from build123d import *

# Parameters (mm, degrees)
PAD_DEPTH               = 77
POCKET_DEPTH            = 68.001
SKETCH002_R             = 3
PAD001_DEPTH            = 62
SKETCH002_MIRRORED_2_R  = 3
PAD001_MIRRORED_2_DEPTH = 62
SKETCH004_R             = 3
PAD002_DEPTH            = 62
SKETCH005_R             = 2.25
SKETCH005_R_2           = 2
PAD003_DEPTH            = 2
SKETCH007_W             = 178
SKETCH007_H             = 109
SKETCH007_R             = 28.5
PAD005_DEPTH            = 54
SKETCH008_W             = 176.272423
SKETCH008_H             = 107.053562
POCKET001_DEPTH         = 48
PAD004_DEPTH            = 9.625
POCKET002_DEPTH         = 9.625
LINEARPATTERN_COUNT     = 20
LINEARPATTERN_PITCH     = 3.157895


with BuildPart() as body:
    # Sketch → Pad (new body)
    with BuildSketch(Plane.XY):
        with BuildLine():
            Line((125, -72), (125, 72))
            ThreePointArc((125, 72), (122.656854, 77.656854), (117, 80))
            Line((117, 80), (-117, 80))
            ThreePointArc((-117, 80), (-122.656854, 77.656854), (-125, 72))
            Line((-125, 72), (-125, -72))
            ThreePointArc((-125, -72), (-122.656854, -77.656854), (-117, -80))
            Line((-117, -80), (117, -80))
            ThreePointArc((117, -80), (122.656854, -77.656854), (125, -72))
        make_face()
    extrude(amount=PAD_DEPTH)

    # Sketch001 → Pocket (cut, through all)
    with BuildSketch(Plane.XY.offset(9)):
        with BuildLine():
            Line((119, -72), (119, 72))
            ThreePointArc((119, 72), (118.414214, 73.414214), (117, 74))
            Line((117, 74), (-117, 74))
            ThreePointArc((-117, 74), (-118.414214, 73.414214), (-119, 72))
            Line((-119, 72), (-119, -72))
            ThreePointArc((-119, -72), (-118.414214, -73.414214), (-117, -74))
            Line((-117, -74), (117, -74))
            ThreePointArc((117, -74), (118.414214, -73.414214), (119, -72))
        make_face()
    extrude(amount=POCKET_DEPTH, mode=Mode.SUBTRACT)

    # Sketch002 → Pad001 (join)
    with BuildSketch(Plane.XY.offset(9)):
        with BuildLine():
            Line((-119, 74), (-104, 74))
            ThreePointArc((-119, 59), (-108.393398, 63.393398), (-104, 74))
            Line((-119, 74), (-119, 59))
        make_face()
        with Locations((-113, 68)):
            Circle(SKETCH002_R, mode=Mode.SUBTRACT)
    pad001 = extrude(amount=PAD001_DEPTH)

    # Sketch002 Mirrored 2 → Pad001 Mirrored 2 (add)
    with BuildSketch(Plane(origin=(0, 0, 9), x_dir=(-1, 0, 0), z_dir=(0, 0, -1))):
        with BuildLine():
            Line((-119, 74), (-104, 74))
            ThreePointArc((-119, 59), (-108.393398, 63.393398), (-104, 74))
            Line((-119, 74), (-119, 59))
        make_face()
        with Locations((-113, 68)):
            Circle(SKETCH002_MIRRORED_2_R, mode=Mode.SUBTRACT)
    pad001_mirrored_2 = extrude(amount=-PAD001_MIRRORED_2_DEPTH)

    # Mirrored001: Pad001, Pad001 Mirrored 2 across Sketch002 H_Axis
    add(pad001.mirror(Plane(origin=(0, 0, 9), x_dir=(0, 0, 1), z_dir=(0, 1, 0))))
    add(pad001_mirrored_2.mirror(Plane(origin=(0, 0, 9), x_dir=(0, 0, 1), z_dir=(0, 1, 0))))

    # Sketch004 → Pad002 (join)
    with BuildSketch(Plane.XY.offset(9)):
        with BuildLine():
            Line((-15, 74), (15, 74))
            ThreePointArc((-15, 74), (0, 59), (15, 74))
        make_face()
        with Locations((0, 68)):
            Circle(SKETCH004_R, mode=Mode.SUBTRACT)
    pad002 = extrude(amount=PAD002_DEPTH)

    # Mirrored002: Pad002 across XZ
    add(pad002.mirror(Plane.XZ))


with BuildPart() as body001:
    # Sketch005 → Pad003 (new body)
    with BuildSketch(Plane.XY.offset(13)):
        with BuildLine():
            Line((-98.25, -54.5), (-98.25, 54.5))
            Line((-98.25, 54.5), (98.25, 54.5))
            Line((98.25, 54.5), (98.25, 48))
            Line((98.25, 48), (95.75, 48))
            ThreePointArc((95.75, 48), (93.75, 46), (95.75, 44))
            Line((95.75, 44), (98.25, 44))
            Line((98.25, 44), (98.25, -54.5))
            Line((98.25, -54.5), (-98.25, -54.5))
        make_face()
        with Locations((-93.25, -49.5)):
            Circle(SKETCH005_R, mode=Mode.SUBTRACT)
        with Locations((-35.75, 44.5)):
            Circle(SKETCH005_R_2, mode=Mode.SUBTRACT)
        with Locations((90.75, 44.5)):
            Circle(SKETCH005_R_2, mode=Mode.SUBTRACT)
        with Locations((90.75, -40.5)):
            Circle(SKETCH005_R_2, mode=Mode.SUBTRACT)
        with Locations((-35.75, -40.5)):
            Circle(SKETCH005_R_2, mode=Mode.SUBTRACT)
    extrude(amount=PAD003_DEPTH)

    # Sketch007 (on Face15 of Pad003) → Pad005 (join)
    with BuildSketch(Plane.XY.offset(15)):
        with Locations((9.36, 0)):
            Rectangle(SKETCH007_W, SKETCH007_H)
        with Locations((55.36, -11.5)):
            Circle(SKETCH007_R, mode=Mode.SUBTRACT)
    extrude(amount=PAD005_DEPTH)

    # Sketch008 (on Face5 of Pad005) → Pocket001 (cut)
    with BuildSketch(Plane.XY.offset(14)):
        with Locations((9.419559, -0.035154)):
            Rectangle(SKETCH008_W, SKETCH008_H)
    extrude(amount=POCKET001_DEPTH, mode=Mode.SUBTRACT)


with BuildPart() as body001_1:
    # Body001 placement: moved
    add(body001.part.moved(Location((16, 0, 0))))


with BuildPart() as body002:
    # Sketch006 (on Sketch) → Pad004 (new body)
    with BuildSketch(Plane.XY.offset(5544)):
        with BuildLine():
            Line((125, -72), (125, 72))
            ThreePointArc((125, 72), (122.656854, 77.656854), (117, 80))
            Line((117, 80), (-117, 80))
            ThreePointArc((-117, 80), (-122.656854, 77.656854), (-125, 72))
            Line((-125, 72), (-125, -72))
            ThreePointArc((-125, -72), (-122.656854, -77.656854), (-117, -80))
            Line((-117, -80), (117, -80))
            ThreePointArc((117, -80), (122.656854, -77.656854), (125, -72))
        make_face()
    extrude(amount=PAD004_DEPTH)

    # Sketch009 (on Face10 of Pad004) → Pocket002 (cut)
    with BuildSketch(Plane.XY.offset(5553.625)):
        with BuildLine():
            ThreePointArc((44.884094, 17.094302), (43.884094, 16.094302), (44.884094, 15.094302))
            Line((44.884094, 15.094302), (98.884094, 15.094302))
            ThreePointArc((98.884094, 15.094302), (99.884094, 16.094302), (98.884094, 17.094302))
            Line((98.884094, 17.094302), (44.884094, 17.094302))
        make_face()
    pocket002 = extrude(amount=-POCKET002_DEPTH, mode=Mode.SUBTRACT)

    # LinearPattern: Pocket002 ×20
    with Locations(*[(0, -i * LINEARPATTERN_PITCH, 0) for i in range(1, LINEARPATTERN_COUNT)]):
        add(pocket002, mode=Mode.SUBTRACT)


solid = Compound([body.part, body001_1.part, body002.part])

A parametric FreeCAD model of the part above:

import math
import FreeCAD as App
import Part
import Sketcher
from FreeCAD import Vector
Q = App.Units.Quantity


def add_polygon(sketch, points):
    """Adds a closed chain of lines whose ends are joined by coincident constraints."""
    first, n = sketch.GeometryCount, len(points)
    for a, b in zip(points, points[1:] + points[:1]):
        sketch.addGeometry(Part.LineSegment(App.Vector(*a, 0), App.Vector(*b, 0)), False)
    for i in range(n):
        sketch.addConstraint(Sketcher.Constraint("Coincident", first + i, 2, first + (i + 1) % n, 1))

doc = App.newDocument("Part")
body = doc.addObject("PartDesign::Body", "Body")

# Sketch on XY plane
sketch1 = body.newObject("Sketcher::SketchObject", "Sketch")
sketch1.AttachmentSupport = (doc.getObject("XY_Plane"), [""])
sketch1.MapMode = "FlatFace"
sketch1.addGeometry([
    Part.LineSegment(Vector(125, -72, 0), Vector(125, 72, 0)),  # 0
    Part.ArcOfCircle(Part.Circle(Vector(116.999999, 71.999999, 0), Vector(0, 0, 1), 8.000001), math.radians(0.000006), math.radians(89.999994)),  # 1
    Part.LineSegment(Vector(117, 80, 0), Vector(-117, 80, 0)),  # 2
    Part.ArcOfCircle(Part.Circle(Vector(-116.999999, 71.999999, 0), Vector(0, 0, 1), 8.000001), math.radians(90.000006), math.radians(179.999994)),  # 3
    Part.LineSegment(Vector(-125, 72, 0), Vector(-125, -72, 0)),  # 4
    Part.ArcOfCircle(Part.Circle(Vector(-116.999999, -71.999999, 0), Vector(0, 0, 1), 8.000001), math.radians(-179.999994), math.radians(-90.000006)),  # 5
    Part.LineSegment(Vector(-117, -80, 0), Vector(117, -80, 0)),  # 6
    Part.ArcOfCircle(Part.Circle(Vector(116.999999, -71.999999, 0), Vector(0, 0, 1), 8.000001), math.radians(-89.999994), math.radians(-0.000006)),  # 7
], False)
sketch1.addConstraint([
    Sketcher.Constraint("Tangent", 0, 2, 1, 1),
    Sketcher.Constraint("Tangent", 1, 2, 2, 1),
    Sketcher.Constraint("Tangent", 2, 2, 3, 1),
    Sketcher.Constraint("Tangent", 3, 2, 4, 1),
    Sketcher.Constraint("Tangent", 4, 2, 5, 1),
    Sketcher.Constraint("Tangent", 5, 2, 6, 1),
    Sketcher.Constraint("Tangent", 6, 2, 7, 1),
    Sketcher.Constraint("Tangent", 7, 2, 0, 1),
    Sketcher.Constraint("Vertical", 0),
    Sketcher.Constraint("Horizontal", 2),
    Sketcher.Constraint("Vertical", 4),
    Sketcher.Constraint("Horizontal", 6),
    Sketcher.Constraint("Equal", 1, 3),
    Sketcher.Constraint("Equal", 3, 5),
    Sketcher.Constraint("Equal", 5, 7),
    Sketcher.Constraint("Symmetric", 1, 3, 5, 3, -1, 1),
    Sketcher.Constraint("Radius", 1, Q("8.000001 mm")),
    Sketcher.Constraint("DistanceX", 2, 2, 2, 1, Q("234 mm")),
    Sketcher.Constraint("DistanceY", 0, 1, 0, 2, Q("144 mm")),
])
pad1 = body.newObject("PartDesign::Pad", "Pad")
pad1.Profile = sketch1
pad1.Length = 77

# Sketch on XY plane
sketch2 = body.newObject("Sketcher::SketchObject", "Sketch001")
sketch2.AttachmentSupport = (doc.getObject("XY_Plane"), [""])
sketch2.MapMode = "FlatFace"
sketch2.AttachmentOffset = App.Placement(Vector(0, 0, 9), App.Rotation())
sketch2.addGeometry([
    Part.LineSegment(Vector(119, -72, 0), Vector(119, 72, 0)),  # 0
    Part.ArcOfCircle(Part.Circle(Vector(117.000001, 72.000001, 0), Vector(0, 0, 1), 1.999999), math.radians(-0.000043), math.radians(90.000043)),  # 1
    Part.LineSegment(Vector(117, 74, 0), Vector(-117, 74, 0)),  # 2
    Part.ArcOfCircle(Part.Circle(Vector(-117.000001, 72.000001, 0), Vector(0, 0, 1), 1.999999), math.radians(89.999957), math.radians(180.000043)),  # 3
    Part.LineSegment(Vector(-119, 72, 0), Vector(-119, -72, 0)),  # 4
    Part.ArcOfCircle(Part.Circle(Vector(-117.000001, -72.000001, 0), Vector(0, 0, 1), 1.999999), math.radians(179.999957), math.radians(270.000043)),  # 5
    Part.LineSegment(Vector(-117, -74, 0), Vector(117, -74, 0)),  # 6
    Part.ArcOfCircle(Part.Circle(Vector(117.000001, -72.000001, 0), Vector(0, 0, 1), 1.999999), math.radians(-90.000043), math.radians(0.000043)),  # 7
], False)
sketch2.addConstraint([
    Sketcher.Constraint("Tangent", 0, 2, 1, 1),
    Sketcher.Constraint("Tangent", 1, 2, 2, 1),
    Sketcher.Constraint("Tangent", 2, 2, 3, 1),
    Sketcher.Constraint("Tangent", 3, 2, 4, 1),
    Sketcher.Constraint("Tangent", 4, 2, 5, 1),
    Sketcher.Constraint("Tangent", 5, 2, 6, 1),
    Sketcher.Constraint("Tangent", 6, 2, 7, 1),
    Sketcher.Constraint("Tangent", 7, 2, 0, 1),
    Sketcher.Constraint("Vertical", 0),
    Sketcher.Constraint("Horizontal", 2),
    Sketcher.Constraint("Vertical", 4),
    Sketcher.Constraint("Horizontal", 6),
    Sketcher.Constraint("Equal", 1, 3),
    Sketcher.Constraint("Equal", 3, 5),
    Sketcher.Constraint("Equal", 5, 7),
    Sketcher.Constraint("Symmetric", 1, 3, 5, 3, -1, 1),
    Sketcher.Constraint("Radius", 1, Q("1.999999 mm")),
    Sketcher.Constraint("DistanceX", 2, 2, 2, 1, Q("234 mm")),
    Sketcher.Constraint("DistanceY", 0, 1, 0, 2, Q("144 mm")),
])
pocket1 = body.newObject("PartDesign::Pocket", "Pocket")
pocket1.Profile = sketch2
pocket1.Type = "ThroughAll"
pocket1.Reversed = True

# Sketch on XY plane
sketch3 = body.newObject("Sketcher::SketchObject", "Sketch002")
sketch3.AttachmentSupport = (doc.getObject("XY_Plane"), [""])
sketch3.MapMode = "FlatFace"
sketch3.AttachmentOffset = App.Placement(Vector(0, 0, 9), App.Rotation())
sketch3.addGeometry([
    Part.LineSegment(Vector(-104, 74, 0), Vector(-119, 74, 0)),
    Part.LineSegment(Vector(-119, 74, 0), Vector(-119, 59, 0)),
    Part.ArcOfCircle(Part.Circle(Vector(-118.999999, 73.999999, 0), Vector(0, 0, 1), 14.999999), math.radians(-90.000004), math.radians(0.000004)),
    Part.Circle(Vector(-113, 68, 0), Vector(0, 0, 1), 3),
], False)
sketch3.addConstraint([
    Sketcher.Constraint("Coincident", 0, 2, 1, 1),
    Sketcher.Constraint("Coincident", 1, 2, 2, 1),
    Sketcher.Constraint("Coincident", 2, 2, 0, 1),
    Sketcher.Constraint("Horizontal", 0),
    Sketcher.Constraint("Vertical", 1),
    Sketcher.Constraint("Coincident", 0, 2, 2, 3),
    Sketcher.Constraint("Diameter", 3, Q("6 mm")),
    Sketcher.Constraint("Radius", 2, Q("14.999999 mm")),
    Sketcher.Constraint("DistanceX", 2, 3, -1, 1, Q("118.999999 mm")),
    Sketcher.Constraint("DistanceY", -1, 1, 2, 3, Q("73.999999 mm")),
    Sketcher.Constraint("DistanceX", 3, 3, -1, 1, Q("113 mm")),
    Sketcher.Constraint("DistanceY", -1, 1, 3, 3, Q("68 mm")),
])
pad2 = body.newObject("PartDesign::Pad", "Pad001")
pad2.Profile = sketch3
pad2.Length = 62

# Sketch on XY plane
sketch4 = body.newObject("Sketcher::SketchObject", "Sketch003")
sketch4.AttachmentSupport = (doc.getObject("XY_Plane"), [""])
sketch4.MapMode = "FlatFace"
sketch4.AttachmentOffset = App.Placement(Vector(0, 0, 9), App.Rotation())
sketch4.addGeometry([
    Part.LineSegment(Vector(104, 74, 0), Vector(119, 74, 0)),
    Part.LineSegment(Vector(119, 74, 0), Vector(119, 59, 0)),
    Part.ArcOfCircle(Part.Circle(Vector(118.999999, 73.999999, 0), Vector(0, 0, 1), 14.999999), math.radians(179.999996), math.radians(270.000004)),
    Part.Circle(Vector(113, 68, 0), Vector(0, 0, 1), 3),
], False)
sketch4.addConstraint([
    Sketcher.Constraint("Coincident", 0, 2, 1, 1),
    Sketcher.Constraint("Coincident", 1, 2, 2, 2),
    Sketcher.Constraint("Coincident", 2, 1, 0, 1),
    Sketcher.Constraint("Horizontal", 0),
    Sketcher.Constraint("Vertical", 1),
    Sketcher.Constraint("Coincident", 0, 2, 2, 3),
    Sketcher.Constraint("Diameter", 3, Q("6 mm")),
    Sketcher.Constraint("Radius", 2, Q("14.999999 mm")),
    Sketcher.Constraint("DistanceX", -1, 1, 2, 3, Q("118.999999 mm")),
    Sketcher.Constraint("DistanceY", -1, 1, 2, 3, Q("73.999999 mm")),
    Sketcher.Constraint("DistanceX", -1, 1, 3, 3, Q("113 mm")),
    Sketcher.Constraint("DistanceY", -1, 1, 3, 3, Q("68 mm")),
])
pad3 = body.newObject("PartDesign::Pad", "Pad002")
pad3.Profile = sketch4
pad3.Length = 62
doc.recompute()

mirrored = body.newObject("PartDesign::Mirrored", "Mirrored")
mirrored.Originals = [pad2, pad3]
mirrored.MirrorPlane = (doc.getObject("XZ_Plane"), [""])
body.Tip = mirrored

# Sketch on XY plane
sketch5 = body.newObject("Sketcher::SketchObject", "Sketch004")
sketch5.AttachmentSupport = (doc.getObject("XY_Plane"), [""])
sketch5.MapMode = "FlatFace"
sketch5.AttachmentOffset = App.Placement(Vector(0, 0, 9), App.Rotation())
sketch5.addGeometry([
    Part.LineSegment(Vector(15, 74, 0), Vector(-15, 74, 0)),
    Part.ArcOfCircle(Part.Circle(Vector(0, 74, 0), Vector(0, 0, 1), 15), math.radians(180), math.radians(360)),
    Part.Circle(Vector(0, 68, 0), Vector(0, 0, 1), 3),
], False)
sketch5.addConstraint([
    Sketcher.Constraint("Coincident", 0, 1, 1, 2),
    Sketcher.Constraint("Coincident", 1, 1, 0, 2),
    Sketcher.Constraint("Horizontal", 0),
    Sketcher.Constraint("PointOnObject", 1, 3, -2),
    Sketcher.Constraint("PointOnObject", 2, 3, -2),
    Sketcher.Constraint("Horizontal", 1, 3, 0, 1),
    Sketcher.Constraint("Diameter", 2, Q("6 mm")),
    Sketcher.Constraint("Radius", 1, Q("15 mm")),
    Sketcher.Constraint("DistanceY", -1, 1, 1, 3, Q("74 mm")),
    Sketcher.Constraint("DistanceY", -1, 1, 2, 3, Q("68 mm")),
])
pad4 = body.newObject("PartDesign::Pad", "Pad003")
pad4.Profile = sketch5
pad4.Length = 62
doc.recompute()

mirrored2 = body.newObject("PartDesign::Mirrored", "Mirrored001")
mirrored2.Originals = [pad4]
mirrored2.MirrorPlane = (doc.getObject("XZ_Plane"), [""])
body.Tip = mirrored2
body2 = doc.addObject("PartDesign::Body", "Body001")

# Sketch on XY plane
sketch6 = body2.newObject("Sketcher::SketchObject", "Sketch005")
sketch6.AttachmentSupport = (doc.getObject("XY_Plane001"), [""])
sketch6.MapMode = "FlatFace"
sketch6.AttachmentOffset = App.Placement(Vector(0, 0, 13), App.Rotation())
sketch6.addGeometry([
    Part.LineSegment(Vector(-98.25, 54.5, 0), Vector(-98.25, -54.5, 0)),  # 0
    Part.LineSegment(Vector(-98.25, -54.5, 0), Vector(98.25, -54.5, 0)),  # 1
    Part.LineSegment(Vector(98.25, -54.5, 0), Vector(98.25, 44, 0)),  # 2
    Part.LineSegment(Vector(98.25, 44, 0), Vector(95.75, 44, 0)),  # 3
    Part.ArcOfCircle(Part.Circle(Vector(95.75, 46, 0), Vector(0, 0, 1), 2), math.radians(90), math.radians(270)),  # 4
    Part.LineSegment(Vector(95.75, 48, 0), Vector(98.25, 48, 0)),  # 5
    Part.LineSegment(Vector(98.25, 48, 0), Vector(98.25, 54.5, 0)),  # 6
    Part.LineSegment(Vector(98.25, 54.5, 0), Vector(-98.25, 54.5, 0)),  # 7
    Part.Circle(Vector(90.75, -40.5, 0), Vector(0, 0, 1), 2),  # 8
    Part.Circle(Vector(-35.75, -40.5, 0), Vector(0, 0, 1), 2),  # 9
    Part.Circle(Vector(-93.25, -49.5, 0), Vector(0, 0, 1), 2.25),  # 10
    Part.Circle(Vector(90.75, 44.5, 0), Vector(0, 0, 1), 2),  # 11
    Part.Circle(Vector(-35.75, 44.5, 0), Vector(0, 0, 1), 2),  # 12
], False)
sketch6.addConstraint([
    Sketcher.Constraint("Coincident", 0, 2, 1, 1),
    Sketcher.Constraint("Coincident", 1, 2, 2, 1),
    Sketcher.Constraint("Coincident", 2, 2, 3, 1),
    Sketcher.Constraint("Tangent", 3, 2, 4, 2),
    Sketcher.Constraint("Tangent", 4, 1, 5, 1),
    Sketcher.Constraint("Coincident", 5, 2, 6, 1),
    Sketcher.Constraint("Coincident", 6, 2, 7, 1),
    Sketcher.Constraint("Coincident", 7, 2, 0, 1),
    Sketcher.Constraint("Vertical", 0),
    Sketcher.Constraint("Horizontal", 1),
    Sketcher.Constraint("Vertical", 2),
    Sketcher.Constraint("Horizontal", 3),
    Sketcher.Constraint("Horizontal", 5),
    Sketcher.Constraint("Vertical", 6),
    Sketcher.Constraint("Horizontal", 7),
    Sketcher.Constraint("Equal", 4, 8),
    Sketcher.Constraint("Equal", 8, 9),
    Sketcher.Constraint("Equal", 9, 11),
    Sketcher.Constraint("Equal", 11, 12),
    Sketcher.Constraint("Symmetric", 0, 2, 6, 2, -1, 1),
    Sketcher.Constraint("Horizontal", 8, 3, 9, 3),
    Sketcher.Constraint("Horizontal", 11, 3, 12, 3),
    Sketcher.Constraint("Vertical", 8, 3, 11, 3),
    Sketcher.Constraint("Vertical", 9, 3, 12, 3),
    Sketcher.Constraint("Vertical", 2, 2, 5, 2),
    Sketcher.Constraint("Diameter", 8, Q("4 mm")),
    Sketcher.Constraint("Diameter", 10, Q("4.5 mm")),
    Sketcher.Constraint("DistanceY", 0, 2, 0, 1, Q("109 mm")),
    Sketcher.Constraint("DistanceX", 1, 1, 1, 2, Q("196.5 mm")),
    Sketcher.Constraint("DistanceX", 3, 2, 3, 1, Q("2.5 mm")),
    Sketcher.Constraint("DistanceY", 2, 1, 2, 2, Q("98.5 mm")),
    Sketcher.Constraint("DistanceX", 8, 3, 4, 3, Q("5 mm")),
    Sketcher.Constraint("DistanceY", 10, 3, 9, 3, Q("9 mm")),
    Sketcher.Constraint("DistanceX", 10, 3, 8, 3, Q("184 mm")),
    Sketcher.Constraint("DistanceY", 8, 3, 11, 3, Q("85 mm")),
    Sketcher.Constraint("DistanceY", 0, 2, 10, 3, Q("5 mm")),
    Sketcher.Constraint("DistanceX", 9, 3, 1, 2, Q("134 mm")),
])
pad5 = body2.newObject("PartDesign::Pad", "Pad004")
pad5.Profile = sketch6
pad5.Length = 2

# Sketch on XY plane
sketch7 = body2.newObject("Sketcher::SketchObject", "Sketch006")
sketch7.AttachmentSupport = (doc.getObject("XY_Plane001"), [""])
sketch7.MapMode = "FlatFace"
sketch7.AttachmentOffset = App.Placement(Vector(0, 0, 15), App.Rotation())
add_polygon(sketch7, [(-79.64, 54.5), (-79.64, -54.5), (98.36, -54.5), (98.36, 54.5)])  # lines 0-3
sketch7.addGeometry(Part.Circle(Vector(55.36, -11.5, 0), Vector(0, 0, 1), 28.5), False)  # 4
sketch7.addConstraint([
    Sketcher.Constraint("Vertical", 0),
    Sketcher.Constraint("Horizontal", 1),
    Sketcher.Constraint("Vertical", 2),
    Sketcher.Constraint("Horizontal", 3),
    Sketcher.Constraint("Diameter", 4, Q("57 mm")),
    Sketcher.Constraint("DistanceX", 1, 1, 1, 2, Q("178 mm")),
    Sketcher.Constraint("DistanceY", 0, 2, 0, 1, Q("109 mm")),
    Sketcher.Constraint("DistanceX", 0, 2, 4, 3, Q("135 mm")),
    Sketcher.Constraint("DistanceY", 0, 2, 4, 3, Q("43 mm")),
    Sketcher.Constraint("DistanceY", 4, 3, -1, 1, Q("11.5 mm")),
    Sketcher.Constraint("DistanceX", -1, 1, 4, 3, Q("55.36 mm")),
])
pad6 = body2.newObject("PartDesign::Pad", "Pad005")
pad6.Profile = sketch7
pad6.Length = 54

# Sketch on XY plane
sketch8 = body2.newObject("Sketcher::SketchObject", "Sketch007")
sketch8.AttachmentSupport = (doc.getObject("XY_Plane001"), [""])
sketch8.MapMode = "FlatFace"
sketch8.AttachmentOffset = App.Placement(Vector(0, 0, 14), App.Rotation())
add_polygon(sketch8, [(-78.716652, 53.491627), (-78.716652, -53.561935), (97.55577, -53.561935), (97.55577, 53.491627)])  # lines 0-3
sketch8.addConstraint([
    Sketcher.Constraint("Vertical", 0),
    Sketcher.Constraint("Horizontal", 1),
    Sketcher.Constraint("Vertical", 2),
    Sketcher.Constraint("Horizontal", 3),
    Sketcher.Constraint("DistanceY", 0, 2, 0, 1, Q("107.053562 mm")),
    Sketcher.Constraint("DistanceX", 1, 1, 1, 2, Q("176.272423 mm")),
    Sketcher.Constraint("DistanceX", -1, 1, 1, 2, Q("97.55577 mm")),
    Sketcher.Constraint("DistanceY", 0, 2, -1, 1, Q("53.561935 mm")),
])
pocket2 = body2.newObject("PartDesign::Pocket", "Pocket001")
pocket2.Profile = sketch8
pocket2.Length = 48
pocket2.Reversed = True
body3 = doc.addObject("PartDesign::Body", "Body002")
doc.recompute()

body2.Placement = App.Placement(Vector(16, 0, 0), App.Rotation(Vector(0, 0, 1), 0))
boolean = body3.newObject("PartDesign::Boolean", "Boolean")
boolean.Type = "Fuse"
boolean.addObjects([body2])
body4 = doc.addObject("PartDesign::Body", "Body003")

# Sketch on XY plane
sketch9 = body4.newObject("Sketcher::SketchObject", "Sketch008")
sketch9.AttachmentSupport = (doc.getObject("XY_Plane003"), [""])
sketch9.MapMode = "FlatFace"
sketch9.AttachmentOffset = App.Placement(Vector(0, 0, 5544), App.Rotation())
sketch9.addGeometry([
    Part.LineSegment(Vector(125, -72, 0), Vector(125, 72, 0)),  # 0
    Part.ArcOfCircle(Part.Circle(Vector(116.999999, 71.999999, 0), Vector(0, 0, 1), 8.000001), math.radians(0.000006), math.radians(89.999994)),  # 1
    Part.LineSegment(Vector(117, 80, 0), Vector(-117, 80, 0)),  # 2
    Part.ArcOfCircle(Part.Circle(Vector(-116.999999, 71.999999, 0), Vector(0, 0, 1), 8.000001), math.radians(90.000006), math.radians(179.999994)),  # 3
    Part.LineSegment(Vector(-125, 72, 0), Vector(-125, -72, 0)),  # 4
    Part.ArcOfCircle(Part.Circle(Vector(-116.999999, -71.999999, 0), Vector(0, 0, 1), 8.000001), math.radians(-179.999994), math.radians(-90.000006)),  # 5
    Part.LineSegment(Vector(-117, -80, 0), Vector(117, -80, 0)),  # 6
    Part.ArcOfCircle(Part.Circle(Vector(116.999999, -71.999999, 0), Vector(0, 0, 1), 8.000001), math.radians(-89.999994), math.radians(-0.000006)),  # 7
], False)
sketch9.addConstraint([
    Sketcher.Constraint("Tangent", 0, 2, 1, 1),
    Sketcher.Constraint("Tangent", 1, 2, 2, 1),
    Sketcher.Constraint("Tangent", 2, 2, 3, 1),
    Sketcher.Constraint("Tangent", 3, 2, 4, 1),
    Sketcher.Constraint("Tangent", 4, 2, 5, 1),
    Sketcher.Constraint("Tangent", 5, 2, 6, 1),
    Sketcher.Constraint("Tangent", 6, 2, 7, 1),
    Sketcher.Constraint("Tangent", 7, 2, 0, 1),
    Sketcher.Constraint("Vertical", 0),
    Sketcher.Constraint("Horizontal", 2),
    Sketcher.Constraint("Vertical", 4),
    Sketcher.Constraint("Horizontal", 6),
    Sketcher.Constraint("Equal", 1, 3),
    Sketcher.Constraint("Equal", 3, 5),
    Sketcher.Constraint("Equal", 5, 7),
    Sketcher.Constraint("Symmetric", 1, 3, 5, 3, -1, 1),
    Sketcher.Constraint("Radius", 1, Q("8.000001 mm")),
    Sketcher.Constraint("DistanceX", 2, 2, 2, 1, Q("234 mm")),
    Sketcher.Constraint("DistanceY", 0, 1, 0, 2, Q("144 mm")),
])
pad7 = body4.newObject("PartDesign::Pad", "Pad006")
pad7.Profile = sketch9
pad7.Length = 9.625

# Sketch on XY plane
sketch10 = body4.newObject("Sketcher::SketchObject", "Sketch009")
sketch10.AttachmentSupport = (doc.getObject("XY_Plane003"), [""])
sketch10.MapMode = "FlatFace"
sketch10.AttachmentOffset = App.Placement(Vector(0, 0, 5553.625), App.Rotation())
sketch10.addGeometry([
    Part.ArcOfCircle(Part.Circle(Vector(44.884094, 16.094302, 0), Vector(0, 0, 1), 1), math.radians(90), math.radians(270)),
    Part.LineSegment(Vector(44.884094, 15.094302, 0), Vector(98.884094, 15.094302, 0)),
    Part.ArcOfCircle(Part.Circle(Vector(98.884094, 16.094302, 0), Vector(0, 0, 1), 1), math.radians(-90), math.radians(90)),
    Part.LineSegment(Vector(98.884094, 17.094302, 0), Vector(44.884094, 17.094302, 0)),
], False)
sketch10.addConstraint([
    Sketcher.Constraint("Tangent", 0, 2, 1, 1),
    Sketcher.Constraint("Tangent", 1, 2, 2, 1),
    Sketcher.Constraint("Tangent", 2, 2, 3, 1),
    Sketcher.Constraint("Tangent", 3, 2, 0, 1),
    Sketcher.Constraint("Horizontal", 1),
    Sketcher.Constraint("Horizontal", 3),
    Sketcher.Constraint("Radius", 0, Q("1 mm")),
    Sketcher.Constraint("DistanceX", 1, 1, 1, 2, Q("54 mm")),
    Sketcher.Constraint("DistanceY", -1, 1, 0, 3, Q("16.094302 mm")),
    Sketcher.Constraint("DistanceX", -1, 1, 0, 3, Q("44.884094 mm")),
])
pocket3 = body4.newObject("PartDesign::Pocket", "Pocket002")
pocket3.Profile = sketch10
pocket3.Length = 9.625
doc.recompute()

linearpattern = body4.newObject("PartDesign::LinearPattern", "LinearPattern")
linearpattern.Originals = [pocket3]
linearpattern.Direction = (doc.getObject("Y_Axis003"), [""])
linearpattern.Mode = "offset"
linearpattern.Offset = 3.157895
linearpattern.Occurrences = 20
linearpattern.Reversed = True
body4.Tip = linearpattern

doc.recompute()
